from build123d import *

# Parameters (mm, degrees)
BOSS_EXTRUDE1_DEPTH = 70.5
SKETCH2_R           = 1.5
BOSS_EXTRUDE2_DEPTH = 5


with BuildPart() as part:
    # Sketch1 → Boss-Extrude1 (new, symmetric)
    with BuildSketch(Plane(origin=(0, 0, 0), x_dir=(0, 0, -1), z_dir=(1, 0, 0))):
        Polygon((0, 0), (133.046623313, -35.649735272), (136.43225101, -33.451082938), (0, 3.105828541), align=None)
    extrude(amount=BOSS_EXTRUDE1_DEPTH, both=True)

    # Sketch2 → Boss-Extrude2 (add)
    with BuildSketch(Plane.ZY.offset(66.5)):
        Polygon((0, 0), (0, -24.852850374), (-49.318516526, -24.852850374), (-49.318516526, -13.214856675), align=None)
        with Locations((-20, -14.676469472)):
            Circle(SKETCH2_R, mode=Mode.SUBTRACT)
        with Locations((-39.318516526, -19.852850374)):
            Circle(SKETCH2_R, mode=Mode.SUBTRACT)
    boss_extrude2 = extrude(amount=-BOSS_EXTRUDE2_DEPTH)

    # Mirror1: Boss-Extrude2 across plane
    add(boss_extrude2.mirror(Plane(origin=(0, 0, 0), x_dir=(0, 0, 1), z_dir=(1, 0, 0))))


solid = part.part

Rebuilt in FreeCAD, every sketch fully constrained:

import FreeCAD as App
import Part
import Sketcher

V = App.Vector
Q = App.Units.Quantity


def add_polygon(sketch, points):
    """Adds a closed chain of lines whose ends are joined by coincident constraints."""
    first, n = sketch.GeometryCount, len(points)
    for a, b in zip(points, points[1:] + points[:1]):
        sketch.addGeometry(Part.LineSegment(App.Vector(*a, 0), App.Vector(*b, 0)), False)
    for i in range(n):
        sketch.addConstraint(Sketcher.Constraint("Coincident", first + i, 2, first + (i + 1) % n, 1))

doc = App.newDocument("Part")
body = doc.addObject("PartDesign::Body", "Body")

# Sketch on YZ plane
sketch1 = body.newObject("Sketcher::SketchObject", "Sketch")
sketch1.AttachmentSupport = (doc.getObject("YZ_Plane"), [""])
sketch1.MapMode = "FlatFace"
add_polygon(sketch1, [(0, 0), (-35.6, -133), (-33.5, -136.4), (3.1, 0)])  # lines 0-3
sketch1.addConstraint(Sketcher.Constraint("Horizontal", 3))
sketch1.addConstraint(Sketcher.Constraint("Coincident", 3, 2, -1, 1))
sketch1.addConstraint(Sketcher.Constraint("Parallel", 0, 2))
sketch1.addConstraint(Sketcher.Constraint("Angle", 0, Q("-105 deg")))
sketch1.addConstraint(Sketcher.Constraint("Angle", 1, Q("-57 deg")))
sketch1.addConstraint(Sketcher.Constraint("Distance", 0, Q("137.74 mm")))
sketch1.addConstraint(Sketcher.Constraint("Distance", 1, Q("4.036898 mm")))
pad1 = body.newObject("PartDesign::Pad", "Pad")
pad1.Profile = sketch1
pad1.Length = 141
pad1.Midplane = True

# Sketch on YZ plane
sketch2 = body.newObject("Sketcher::SketchObject", "Sketch001")
sketch2.AttachmentSupport = (doc.getObject("YZ_Plane"), [""])
sketch2.MapMode = "FlatFace"
sketch2.AttachmentOffset = App.Placement(V(0, 0, -66.5), App.Rotation())
add_polygon(sketch2, [(-24.9, 0), (0, 0), (-13.2, -49.3), (-24.9, -49.3)])  # lines 0-3
sketch2.addGeometry(Part.Circle(V(-19.9, -39.3, 0), V(0, 0, 1), 1.5), False)  # 4
sketch2.addGeometry(Part.Circle(V(-14.7, -20, 0), V(0, 0, 1), 1.5), False)  # 5
sketch2.addConstraint(Sketcher.Constraint("Horizontal", 0))
sketch2.addConstraint(Sketcher.Constraint("Horizontal", 2))
sketch2.addConstraint(Sketcher.Constraint("Vertical", 3))
sketch2.addConstraint(Sketcher.Constraint("Coincident", 0, 2, -1, 1))
sketch2.addConstraint(Sketcher.Constraint("Equal", 4, 5))
sketch2.addConstraint(Sketcher.Constraint("Diameter", 4, Q("3 mm")))
sketch2.addConstraint(Sketcher.Constraint("Angle", 1, Q("-105 deg")))
sketch2.addConstraint(Sketcher.Constraint("DistanceY", 5, 3, -1, 1, Q("20 mm")))
sketch2.addConstraint(Sketcher.Constraint("DistanceY", 1, 2, 4, 3, Q("10 mm")))
sketch2.addConstraint(Sketcher.Constraint("DistanceX", 2, 2, 4, 3, Q("5 mm")))
sketch2.addConstraint(Sketcher.Constraint("DistanceX", 0, 1, 0, 2, Q("24.85285 mm")))
sketch2.addConstraint(Sketcher.Constraint("DistanceX", 2, 2, 2, 1, Q("11.637994 mm")))
sketch2.addConstraint(Sketcher.Constraint("DistanceX", 5, 3, -1, 1, Q("14.676469 mm")))
pad2 = body.newObject("PartDesign::Pad", "Pad001")
pad2.Profile = sketch2
pad2.Length = 5
doc.recompute()

mirrored = body.newObject("PartDesign::Mirrored", "Mirrored")
mirrored.Originals = [pad2]
mirrored.MirrorPlane = (doc.getObject("YZ_Plane"), [""])
body.Tip = mirrored

doc.recompute()
